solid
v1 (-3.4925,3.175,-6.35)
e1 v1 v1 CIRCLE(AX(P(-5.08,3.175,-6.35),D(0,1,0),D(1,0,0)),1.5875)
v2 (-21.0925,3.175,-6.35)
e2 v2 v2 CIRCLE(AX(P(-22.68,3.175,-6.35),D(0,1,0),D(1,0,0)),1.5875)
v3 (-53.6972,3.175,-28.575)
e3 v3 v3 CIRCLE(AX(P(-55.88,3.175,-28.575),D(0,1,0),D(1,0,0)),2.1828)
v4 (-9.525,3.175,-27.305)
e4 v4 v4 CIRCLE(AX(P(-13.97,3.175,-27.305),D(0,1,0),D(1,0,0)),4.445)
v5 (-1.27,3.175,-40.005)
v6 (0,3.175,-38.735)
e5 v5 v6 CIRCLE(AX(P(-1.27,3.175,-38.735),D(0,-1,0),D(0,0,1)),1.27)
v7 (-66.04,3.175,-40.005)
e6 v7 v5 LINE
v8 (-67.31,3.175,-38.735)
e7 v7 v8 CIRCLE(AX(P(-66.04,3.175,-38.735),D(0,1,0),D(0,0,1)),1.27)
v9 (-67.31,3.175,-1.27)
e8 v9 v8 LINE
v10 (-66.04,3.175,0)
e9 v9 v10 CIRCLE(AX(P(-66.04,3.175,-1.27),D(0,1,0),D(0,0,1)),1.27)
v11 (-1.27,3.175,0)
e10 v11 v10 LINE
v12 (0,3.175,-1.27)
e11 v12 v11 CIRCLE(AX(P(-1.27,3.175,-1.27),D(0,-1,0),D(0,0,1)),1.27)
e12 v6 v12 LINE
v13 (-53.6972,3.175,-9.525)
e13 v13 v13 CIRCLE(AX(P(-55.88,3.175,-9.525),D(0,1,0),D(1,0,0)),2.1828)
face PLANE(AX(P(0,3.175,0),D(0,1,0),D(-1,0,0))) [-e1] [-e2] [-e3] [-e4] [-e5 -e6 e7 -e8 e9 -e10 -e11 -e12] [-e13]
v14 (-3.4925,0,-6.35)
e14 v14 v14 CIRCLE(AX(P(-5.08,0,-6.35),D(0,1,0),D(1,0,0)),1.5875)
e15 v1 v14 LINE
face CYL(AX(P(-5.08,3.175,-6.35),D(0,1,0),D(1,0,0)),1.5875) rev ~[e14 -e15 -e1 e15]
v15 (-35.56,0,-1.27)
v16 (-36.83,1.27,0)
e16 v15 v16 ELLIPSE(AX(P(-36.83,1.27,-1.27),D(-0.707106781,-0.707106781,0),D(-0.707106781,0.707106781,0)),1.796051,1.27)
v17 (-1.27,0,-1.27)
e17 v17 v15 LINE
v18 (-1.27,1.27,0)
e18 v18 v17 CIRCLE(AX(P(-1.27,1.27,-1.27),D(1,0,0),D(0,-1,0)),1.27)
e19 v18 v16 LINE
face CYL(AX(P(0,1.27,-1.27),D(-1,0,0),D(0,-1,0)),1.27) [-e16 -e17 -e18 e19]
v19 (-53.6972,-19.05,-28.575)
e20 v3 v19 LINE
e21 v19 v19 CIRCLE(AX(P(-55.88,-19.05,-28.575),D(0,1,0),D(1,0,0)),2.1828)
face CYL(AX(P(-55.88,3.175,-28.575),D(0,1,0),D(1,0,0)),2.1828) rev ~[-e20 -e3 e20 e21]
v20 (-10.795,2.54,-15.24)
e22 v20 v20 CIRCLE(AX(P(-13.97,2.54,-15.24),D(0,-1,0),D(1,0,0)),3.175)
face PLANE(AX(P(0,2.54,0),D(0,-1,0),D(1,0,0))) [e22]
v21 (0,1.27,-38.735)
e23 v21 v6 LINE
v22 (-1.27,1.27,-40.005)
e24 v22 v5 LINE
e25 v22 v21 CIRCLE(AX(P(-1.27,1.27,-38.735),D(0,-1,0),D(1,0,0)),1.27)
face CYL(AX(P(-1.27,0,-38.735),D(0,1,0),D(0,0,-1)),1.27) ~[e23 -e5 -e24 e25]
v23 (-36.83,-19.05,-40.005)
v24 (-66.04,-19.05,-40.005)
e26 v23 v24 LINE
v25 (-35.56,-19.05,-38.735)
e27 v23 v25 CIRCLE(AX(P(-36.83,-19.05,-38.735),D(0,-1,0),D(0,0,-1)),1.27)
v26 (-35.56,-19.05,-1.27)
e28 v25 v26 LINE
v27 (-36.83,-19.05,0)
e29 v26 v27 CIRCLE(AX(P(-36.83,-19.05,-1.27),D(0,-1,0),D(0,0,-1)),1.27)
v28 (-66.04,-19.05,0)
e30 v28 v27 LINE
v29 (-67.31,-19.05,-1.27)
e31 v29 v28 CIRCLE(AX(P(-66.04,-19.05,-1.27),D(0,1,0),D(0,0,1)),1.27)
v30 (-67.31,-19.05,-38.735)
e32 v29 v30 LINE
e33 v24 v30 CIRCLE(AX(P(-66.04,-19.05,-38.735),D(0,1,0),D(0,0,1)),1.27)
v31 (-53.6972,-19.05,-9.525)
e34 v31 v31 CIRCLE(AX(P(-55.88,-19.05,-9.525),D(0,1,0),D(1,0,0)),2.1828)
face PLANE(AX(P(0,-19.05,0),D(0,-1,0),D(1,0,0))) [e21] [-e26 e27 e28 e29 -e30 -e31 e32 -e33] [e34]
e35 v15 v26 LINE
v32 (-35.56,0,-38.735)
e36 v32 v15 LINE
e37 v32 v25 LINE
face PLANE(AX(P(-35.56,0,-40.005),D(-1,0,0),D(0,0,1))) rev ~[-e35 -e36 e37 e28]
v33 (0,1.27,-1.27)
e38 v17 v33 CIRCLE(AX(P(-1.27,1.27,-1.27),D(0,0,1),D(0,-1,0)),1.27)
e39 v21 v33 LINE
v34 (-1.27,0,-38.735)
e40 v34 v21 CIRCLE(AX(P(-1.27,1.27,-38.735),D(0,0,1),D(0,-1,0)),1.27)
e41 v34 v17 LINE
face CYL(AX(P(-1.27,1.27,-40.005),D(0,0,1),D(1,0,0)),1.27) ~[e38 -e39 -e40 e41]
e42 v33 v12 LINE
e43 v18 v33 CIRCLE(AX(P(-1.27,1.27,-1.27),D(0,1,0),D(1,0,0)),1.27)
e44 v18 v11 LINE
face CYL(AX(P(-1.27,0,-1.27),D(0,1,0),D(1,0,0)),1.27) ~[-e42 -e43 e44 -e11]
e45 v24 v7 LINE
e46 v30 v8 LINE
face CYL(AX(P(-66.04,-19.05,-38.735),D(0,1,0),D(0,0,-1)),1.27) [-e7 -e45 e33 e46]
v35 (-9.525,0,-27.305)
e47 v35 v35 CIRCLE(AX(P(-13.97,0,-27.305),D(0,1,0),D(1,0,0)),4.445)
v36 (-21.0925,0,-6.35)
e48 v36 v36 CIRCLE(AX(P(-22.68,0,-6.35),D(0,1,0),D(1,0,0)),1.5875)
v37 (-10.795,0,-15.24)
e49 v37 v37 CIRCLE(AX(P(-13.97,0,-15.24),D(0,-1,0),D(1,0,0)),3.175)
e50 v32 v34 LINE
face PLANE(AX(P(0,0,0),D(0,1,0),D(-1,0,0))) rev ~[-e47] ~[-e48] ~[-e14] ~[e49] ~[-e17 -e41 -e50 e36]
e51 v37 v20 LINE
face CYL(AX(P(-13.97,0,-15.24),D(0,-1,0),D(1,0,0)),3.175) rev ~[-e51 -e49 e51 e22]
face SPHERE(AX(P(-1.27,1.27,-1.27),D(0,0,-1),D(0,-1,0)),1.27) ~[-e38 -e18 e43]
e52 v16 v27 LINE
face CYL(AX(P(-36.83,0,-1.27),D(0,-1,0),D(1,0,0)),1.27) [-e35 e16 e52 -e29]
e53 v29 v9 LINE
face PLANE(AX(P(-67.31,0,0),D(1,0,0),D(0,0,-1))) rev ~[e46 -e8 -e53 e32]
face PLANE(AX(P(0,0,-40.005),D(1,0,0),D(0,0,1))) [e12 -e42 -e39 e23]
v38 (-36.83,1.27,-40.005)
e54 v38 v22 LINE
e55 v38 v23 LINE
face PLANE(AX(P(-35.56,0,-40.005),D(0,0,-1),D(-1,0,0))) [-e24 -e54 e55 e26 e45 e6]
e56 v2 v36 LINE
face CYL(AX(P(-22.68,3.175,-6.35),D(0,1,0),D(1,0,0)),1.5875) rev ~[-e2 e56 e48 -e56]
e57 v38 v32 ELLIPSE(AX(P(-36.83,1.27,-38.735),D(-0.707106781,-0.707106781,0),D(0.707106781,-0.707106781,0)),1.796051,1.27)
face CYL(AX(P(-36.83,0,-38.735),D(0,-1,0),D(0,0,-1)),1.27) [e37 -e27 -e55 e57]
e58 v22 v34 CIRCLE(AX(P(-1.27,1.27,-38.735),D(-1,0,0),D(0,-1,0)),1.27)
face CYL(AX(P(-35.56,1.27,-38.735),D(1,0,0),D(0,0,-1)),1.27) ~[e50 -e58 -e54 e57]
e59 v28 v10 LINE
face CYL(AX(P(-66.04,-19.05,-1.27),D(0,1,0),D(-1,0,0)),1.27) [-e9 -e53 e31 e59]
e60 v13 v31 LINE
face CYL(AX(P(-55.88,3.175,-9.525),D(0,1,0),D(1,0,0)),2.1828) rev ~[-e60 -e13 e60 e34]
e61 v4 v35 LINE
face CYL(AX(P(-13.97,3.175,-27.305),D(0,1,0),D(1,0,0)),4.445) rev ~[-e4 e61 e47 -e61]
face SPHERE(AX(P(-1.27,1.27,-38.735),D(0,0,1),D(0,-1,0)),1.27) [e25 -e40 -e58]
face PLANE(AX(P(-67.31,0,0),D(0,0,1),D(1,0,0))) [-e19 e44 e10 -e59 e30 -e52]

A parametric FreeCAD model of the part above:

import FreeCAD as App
import Part
import Sketcher
Q = App.Units.Quantity


def edges_at(feature, points):
    """Names of the edges that pass closest to the given points."""
    edges = feature.Shape.Edges
    near = lambda p: min(range(len(edges)), key=lambda i: edges[i].distToShape(Part.Vertex(*p))[0])
    return sorted({f"Edge{near(p) + 1}" for p in points})

doc = App.newDocument("Part")
body = doc.addObject("PartDesign::Body", "Body")

# Sketch on XZ plane
sketch1 = doc.addObject("Sketcher::SketchObject", "Sketch")
body.addObject(sketch1)
sketch1.AttachmentSupport = (doc.XZ_Plane, [""])
sketch1.MapMode = "FlatFace"
sketch1.addGeometry(Part.LineSegment(App.Vector(-67, 0, 0), App.Vector(0, 0, 0)), False)
sketch1.addGeometry(Part.LineSegment(App.Vector(0, 0, 0), App.Vector(0, -40, 0)), False)
sketch1.addGeometry(Part.LineSegment(App.Vector(0, -40, 0), App.Vector(-67, -40, 0)), False)
sketch1.addGeometry(Part.LineSegment(App.Vector(-67, -40, 0), App.Vector(-67, 0, 0)), False)
sketch1.addConstraint(Sketcher.Constraint("Coincident", 0, 2, 1, 1))
sketch1.addConstraint(Sketcher.Constraint("Coincident", 1, 2, 2, 1))
sketch1.addConstraint(Sketcher.Constraint("Coincident", 2, 2, 3, 1))
sketch1.addConstraint(Sketcher.Constraint("Coincident", 3, 2, 0, 1))
sketch1.addConstraint(Sketcher.Constraint("Horizontal", 0))
sketch1.addConstraint(Sketcher.Constraint("Vertical", 1))
sketch1.addConstraint(Sketcher.Constraint("Horizontal", 2))
sketch1.addConstraint(Sketcher.Constraint("Vertical", 3))
sketch1.addConstraint(Sketcher.Constraint("Coincident", 0, 2, -1, 1))
sketch1.addConstraint(Sketcher.Constraint("DistanceX", 0, 1, 0, 2, Q("2.65 in")))
sketch1.addConstraint(Sketcher.Constraint("DistanceY", 1, 2, 1, 1, Q("1.575 in")))
pad1 = doc.addObject("PartDesign::Pad", "Pad")
body.addObject(pad1)
pad1.Profile = sketch1
pad1.Length = Q("0.125 in")
pad1.Reversed = True

# Sketch on XZ plane
sketch2 = doc.addObject("Sketcher::SketchObject", "Sketch001")
body.addObject(sketch2)
sketch2.AttachmentSupport = (doc.XZ_Plane, [""])
sketch2.MapMode = "FlatFace"
sketch2.AttachmentOffset = App.Placement(App.Vector(0, 0, -0.125 * 25.4), App.Rotation())
sketch2.addGeometry(Part.Circle(App.Vector(-14, -27.3, 0), App.Vector(0, 0, 1), 4.4), False)
sketch2.addGeometry(Part.Circle(App.Vector(-5.1, -6.3, 0), App.Vector(0, 0, 1), 1.6), False)
sketch2.addGeometry(Part.Circle(App.Vector(-22.7, -6.3, 0), App.Vector(0, 0, 1), 1.6), False)
sketch2.addConstraint(Sketcher.Constraint("Equal", 1, 2))
sketch2.addConstraint(Sketcher.Constraint("Horizontal", 1, 3, 2, 3))
sketch2.addConstraint(Sketcher.Constraint("Diameter", 0, Q("0.35 in")))
sketch2.addConstraint(Sketcher.Constraint("Diameter", 1, Q("0.125 in")))
sketch2.addConstraint(Sketcher.Constraint("DistanceX", 1, 3, -1, 1, Q("0.2 in")))
sketch2.addConstraint(Sketcher.Constraint("DistanceX", 0, 3, -1, 1, Q("0.55 in")))
sketch2.addConstraint(Sketcher.Constraint("DistanceY", 1, 3, -1, 1, Q("0.25 in")))
sketch2.addConstraint(Sketcher.Constraint("DistanceX", 2, 3, 1, 3, Q("17.6 mm")))
sketch2.addConstraint(Sketcher.Constraint("DistanceY", 0, 3, -1, 1, Q("1.075 in")))
pocket1 = doc.addObject("PartDesign::Pocket", "Pocket")
body.addObject(pocket1)
pocket1.Profile = sketch2
pocket1.Length = Q("0.25 in")
pocket1.Reversed = True

# Sketch on XZ plane
sketch3 = doc.addObject("Sketcher::SketchObject", "Sketch002")
body.addObject(sketch3)
sketch3.AttachmentSupport = (doc.XZ_Plane, [""])
sketch3.MapMode = "FlatFace"
sketch3.addGeometry(Part.LineSegment(App.Vector(-67, -40, 0), App.Vector(-36, -40, 0)), False)
sketch3.addGeometry(Part.LineSegment(App.Vector(-36, -40, 0), App.Vector(-36, 0, 0)), False)
sketch3.addGeometry(Part.LineSegment(App.Vector(-36, 0, 0), App.Vector(-67, 0, 0)), False)
sketch3.addGeometry(Part.LineSegment(App.Vector(-67, 0, 0), App.Vector(-67, -40, 0)), False)
sketch3.addConstraint(Sketcher.Constraint("Coincident", 0, 2, 1, 1))
sketch3.addConstraint(Sketcher.Constraint("Coincident", 1, 2, 2, 1))
sketch3.addConstraint(Sketcher.Constraint("Coincident", 2, 2, 3, 1))
sketch3.addConstraint(Sketcher.Constraint("Coincident", 3, 2, 0, 1))
sketch3.addConstraint(Sketcher.Constraint("Horizontal", 0))
sketch3.addConstraint(Sketcher.Constraint("Vertical", 1))
sketch3.addConstraint(Sketcher.Constraint("Horizontal", 2))
sketch3.addConstraint(Sketcher.Constraint("Vertical", 3))
sketch3.addConstraint(Sketcher.Constraint("PointOnObject", 1, 2, -1))
sketch3.addConstraint(Sketcher.Constraint("DistanceX", 0, 1, 0, 2, Q("1.25 in")))
sketch3.addConstraint(Sketcher.Constraint("DistanceX", 0, 2, -1, 1, Q("1.4 in")))
sketch3.addConstraint(Sketcher.Constraint("DistanceY", 1, 1, 1, 2, Q("1.575 in")))
pad2 = doc.addObject("PartDesign::Pad", "Pad001")
body.addObject(pad2)
pad2.Profile = sketch3
pad2.Length = Q("0.75 in")

# Sketch on XZ plane
sketch4 = doc.addObject("Sketcher::SketchObject", "Sketch003")
body.addObject(sketch4)
sketch4.AttachmentSupport = (doc.XZ_Plane, [""])
sketch4.MapMode = "FlatFace"
sketch4.AttachmentOffset = App.Placement(App.Vector(0, 0, -0.125 * 25.4), App.Rotation())
sketch4.addGeometry(Part.Circle(App.Vector(-55.9, -28.6, 0), App.Vector(0, 0, 1), 2.2), False)
sketch4.addGeometry(Part.Circle(App.Vector(-55.9, -9.5, 0), App.Vector(0, 0, 1), 2.2), False)
sketch4.addConstraint(Sketcher.Constraint("Equal", 0, 1))
sketch4.addConstraint(Sketcher.Constraint("Vertical", 0, 3, 1, 3))
sketch4.addConstraint(Sketcher.Constraint("Diameter", 0, Q("0.171874 in")))
sketch4.addConstraint(Sketcher.Constraint("DistanceY", 0, 3, 1, 3, Q("0.75 in")))
sketch4.addConstraint(Sketcher.Constraint("DistanceY", 1, 3, -1, 1, Q("0.375 in")))
sketch4.addConstraint(Sketcher.Constraint("DistanceX", 0, 3, -1, 1, Q("2.2 in")))
pocket2 = doc.addObject("PartDesign::Pocket", "Pocket001")
body.addObject(pocket2)
pocket2.Profile = sketch4
pocket2.Length = Q("1 in")
pocket2.Reversed = True
doc.recompute()

fillet = doc.addObject("PartDesign::Fillet", "Fillet")
body.addObject(fillet)
fillet.Base = (pocket2, edges_at(pocket2, [
    (0, 0, -20.003),
    (-17.78, 0, 0),
    (-17.78, 0, -40.005),
    (-35.56, -9.525, 0),
    (0, 1.587, 0),
    (0, 1.587, -40.005),
    (-67.31, -7.938, -40.005),
    (-35.56, -9.525, -40.005),
    (-67.31, -7.938, 0),
]))
fillet.Radius = Q("0.05 in")

# Sketch on XZ plane
sketch5 = doc.addObject("Sketcher::SketchObject", "Sketch004")
body.addObject(sketch5)
sketch5.AttachmentSupport = (doc.XZ_Plane, [""])
sketch5.MapMode = "FlatFace"
sketch5.addGeometry(Part.Circle(App.Vector(-14, -15.2, 0), App.Vector(0, 0, 1), 3.2), False)
sketch5.addConstraint(Sketcher.Constraint("Diameter", 0, Q("0.25 in")))
sketch5.addConstraint(Sketcher.Constraint("DistanceY", 0, 3, -1, 1, Q("0.6 in")))
sketch5.addConstraint(Sketcher.Constraint("DistanceX", 0, 3, -1, 1, Q("0.55 in")))
pocket3 = doc.addObject("PartDesign::Pocket", "Pocket002")
body.addObject(pocket3)
pocket3.Profile = sketch5
pocket3.Length = Q("0.1 in")

doc.recompute()
